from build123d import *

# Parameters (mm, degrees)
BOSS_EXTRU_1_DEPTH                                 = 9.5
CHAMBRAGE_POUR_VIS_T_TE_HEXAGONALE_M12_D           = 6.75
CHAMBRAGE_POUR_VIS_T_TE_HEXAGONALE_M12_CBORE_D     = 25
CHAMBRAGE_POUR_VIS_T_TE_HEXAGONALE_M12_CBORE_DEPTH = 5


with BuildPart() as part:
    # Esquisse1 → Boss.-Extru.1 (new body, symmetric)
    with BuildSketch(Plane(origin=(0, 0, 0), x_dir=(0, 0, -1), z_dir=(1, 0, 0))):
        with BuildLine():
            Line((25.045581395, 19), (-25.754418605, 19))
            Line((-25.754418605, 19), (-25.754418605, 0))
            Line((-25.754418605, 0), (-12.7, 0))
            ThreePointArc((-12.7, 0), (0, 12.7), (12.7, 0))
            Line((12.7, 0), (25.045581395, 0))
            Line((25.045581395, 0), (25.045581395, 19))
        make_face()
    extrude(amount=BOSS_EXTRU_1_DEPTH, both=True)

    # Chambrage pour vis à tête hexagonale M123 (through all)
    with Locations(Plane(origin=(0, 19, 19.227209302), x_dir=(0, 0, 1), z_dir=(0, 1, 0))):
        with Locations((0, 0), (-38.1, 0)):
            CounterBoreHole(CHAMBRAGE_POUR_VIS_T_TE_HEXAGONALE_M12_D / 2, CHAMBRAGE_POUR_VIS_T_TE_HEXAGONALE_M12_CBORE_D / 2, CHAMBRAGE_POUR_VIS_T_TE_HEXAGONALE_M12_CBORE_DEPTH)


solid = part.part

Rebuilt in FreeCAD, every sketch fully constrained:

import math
import FreeCAD as App
import Part
import Sketcher

doc = App.newDocument("Part")
params = doc.addObject("Spreadsheet::Sheet", "Params")
for row, (alias, value) in enumerate([
    ("sketch1_radius", "12.7 mm"),
    ("sketch1_width", "19 mm"),
    ("sketch1_height", "50.8 mm"),
    ("pad1_length", "19 mm"),
    ("sketch2_diameter", "6.75 mm"),
    ("hole_diameter", "6.75 mm"),
    ("hole_cbore_diameter", "25 mm"),
    ("hole_cbore_depth", "5 mm"),
], start=1):
    params.set(f"A{row}", alias)
    params.set(f"B{row}", "=" + value)
    params.setAlias(f"B{row}", alias)

body = doc.addObject("PartDesign::Body", "Body")

sketch1 = body.newObject("Sketcher::SketchObject", "Sketch")
sketch1.AttachmentSupport = (doc.getObject("YZ_Plane"), [""])
sketch1.MapMode = "FlatFace"
sketch1.addGeometry([
    Part.LineSegment(App.Vector(19, -25, 0), App.Vector(19, 26, 0)),
    Part.LineSegment(App.Vector(19, 26, 0), App.Vector(0, 26, 0)),
    Part.LineSegment(App.Vector(0, 26, 0), App.Vector(0, 13, 0)),
    Part.ArcOfCircle(Part.Circle(App.Vector(0, 0, 0), App.Vector(0, 0, 1), 13), math.radians(-90), math.radians(90)),
    Part.LineSegment(App.Vector(0, -13, 0), App.Vector(0, -25, 0)),
    Part.LineSegment(App.Vector(0, -25, 0), App.Vector(19, -25, 0)),
], False)
sketch1.addConstraint([
    Sketcher.Constraint("Coincident", 0, 2, 1, 1),
    Sketcher.Constraint("Coincident", 1, 2, 2, 1),
    Sketcher.Constraint("Coincident", 2, 2, 3, 2),
    Sketcher.Constraint("Coincident", 3, 1, 4, 1),
    Sketcher.Constraint("Coincident", 4, 2, 5, 1),
    Sketcher.Constraint("Coincident", 5, 2, 0, 1),
    Sketcher.Constraint("Vertical", 0),
    Sketcher.Constraint("Horizontal", 1),
    Sketcher.Constraint("Vertical", 2),
    Sketcher.Constraint("Vertical", 4),
    Sketcher.Constraint("Horizontal", 5),
    Sketcher.Constraint("Coincident", 3, 3, -1, 1),
    Sketcher.Constraint("PointOnObject", 1, 2, -2),
    Sketcher.Constraint("PointOnObject", 3, 1, -2),
    Sketcher.Constraint("Radius", 3, 12.7),
    Sketcher.Constraint("DistanceX", 1, 2, 1, 1, 19.0),
    Sketcher.Constraint("DistanceY", 0, 1, 0, 2, 50.8),
    Sketcher.Constraint("DistanceY", 2, 2, 2, 1, 13.054419),
])
sketch1.setExpression("Constraints[14]", "Params.sketch1_radius")
sketch1.setExpression("Constraints[15]", "Params.sketch1_width")
sketch1.setExpression("Constraints[16]", "Params.sketch1_height")
pad1 = body.newObject("PartDesign::Pad", "Pad")
pad1.Profile = sketch1
pad1.setExpression("Length", "Params.pad1_length")
pad1.Midplane = True

sketch2 = body.newObject("Sketcher::SketchObject", "Sketch001")
sketch2.AttachmentSupport = (doc.getObject("XZ_Plane"), [""])
sketch2.MapMode = "FlatFace"
sketch2.AttachmentOffset = App.Placement(App.Vector(0, 0, -19), App.Rotation())
sketch2.addGeometry([
    Part.Circle(App.Vector(0, 19.2, 0), App.Vector(0, 0, 1), 3.4),
    Part.Circle(App.Vector(0, -18.9, 0), App.Vector(0, 0, 1), 3.4),
], False)
sketch2.addConstraint([
    Sketcher.Constraint("Equal", 0, 1),
    Sketcher.Constraint("PointOnObject", 0, 3, -2),
    Sketcher.Constraint("PointOnObject", 1, 3, -2),
    Sketcher.Constraint("Diameter", 0, 6.75),
    Sketcher.Constraint("DistanceY", 1, 3, 0, 3, 38.1),
    Sketcher.Constraint("DistanceY", -1, 1, 0, 3, 19.227209),
])
sketch2.setExpression("Constraints[3]", "Params.sketch2_diameter")
doc.recompute()
hole = body.newObject("PartDesign::Hole", "Hole")
hole.Profile = sketch2
hole.ThreadType = "None"
hole.setExpression("Diameter", "Params.hole_diameter")
hole.DepthType = "ThroughAll"
hole.HoleCutType = "Counterbore"
hole.setExpression("HoleCutDiameter", "Params.hole_cbore_diameter")
hole.setExpression("HoleCutDepth", "Params.hole_cbore_depth")
hole.Reversed = True

doc.recompute()
